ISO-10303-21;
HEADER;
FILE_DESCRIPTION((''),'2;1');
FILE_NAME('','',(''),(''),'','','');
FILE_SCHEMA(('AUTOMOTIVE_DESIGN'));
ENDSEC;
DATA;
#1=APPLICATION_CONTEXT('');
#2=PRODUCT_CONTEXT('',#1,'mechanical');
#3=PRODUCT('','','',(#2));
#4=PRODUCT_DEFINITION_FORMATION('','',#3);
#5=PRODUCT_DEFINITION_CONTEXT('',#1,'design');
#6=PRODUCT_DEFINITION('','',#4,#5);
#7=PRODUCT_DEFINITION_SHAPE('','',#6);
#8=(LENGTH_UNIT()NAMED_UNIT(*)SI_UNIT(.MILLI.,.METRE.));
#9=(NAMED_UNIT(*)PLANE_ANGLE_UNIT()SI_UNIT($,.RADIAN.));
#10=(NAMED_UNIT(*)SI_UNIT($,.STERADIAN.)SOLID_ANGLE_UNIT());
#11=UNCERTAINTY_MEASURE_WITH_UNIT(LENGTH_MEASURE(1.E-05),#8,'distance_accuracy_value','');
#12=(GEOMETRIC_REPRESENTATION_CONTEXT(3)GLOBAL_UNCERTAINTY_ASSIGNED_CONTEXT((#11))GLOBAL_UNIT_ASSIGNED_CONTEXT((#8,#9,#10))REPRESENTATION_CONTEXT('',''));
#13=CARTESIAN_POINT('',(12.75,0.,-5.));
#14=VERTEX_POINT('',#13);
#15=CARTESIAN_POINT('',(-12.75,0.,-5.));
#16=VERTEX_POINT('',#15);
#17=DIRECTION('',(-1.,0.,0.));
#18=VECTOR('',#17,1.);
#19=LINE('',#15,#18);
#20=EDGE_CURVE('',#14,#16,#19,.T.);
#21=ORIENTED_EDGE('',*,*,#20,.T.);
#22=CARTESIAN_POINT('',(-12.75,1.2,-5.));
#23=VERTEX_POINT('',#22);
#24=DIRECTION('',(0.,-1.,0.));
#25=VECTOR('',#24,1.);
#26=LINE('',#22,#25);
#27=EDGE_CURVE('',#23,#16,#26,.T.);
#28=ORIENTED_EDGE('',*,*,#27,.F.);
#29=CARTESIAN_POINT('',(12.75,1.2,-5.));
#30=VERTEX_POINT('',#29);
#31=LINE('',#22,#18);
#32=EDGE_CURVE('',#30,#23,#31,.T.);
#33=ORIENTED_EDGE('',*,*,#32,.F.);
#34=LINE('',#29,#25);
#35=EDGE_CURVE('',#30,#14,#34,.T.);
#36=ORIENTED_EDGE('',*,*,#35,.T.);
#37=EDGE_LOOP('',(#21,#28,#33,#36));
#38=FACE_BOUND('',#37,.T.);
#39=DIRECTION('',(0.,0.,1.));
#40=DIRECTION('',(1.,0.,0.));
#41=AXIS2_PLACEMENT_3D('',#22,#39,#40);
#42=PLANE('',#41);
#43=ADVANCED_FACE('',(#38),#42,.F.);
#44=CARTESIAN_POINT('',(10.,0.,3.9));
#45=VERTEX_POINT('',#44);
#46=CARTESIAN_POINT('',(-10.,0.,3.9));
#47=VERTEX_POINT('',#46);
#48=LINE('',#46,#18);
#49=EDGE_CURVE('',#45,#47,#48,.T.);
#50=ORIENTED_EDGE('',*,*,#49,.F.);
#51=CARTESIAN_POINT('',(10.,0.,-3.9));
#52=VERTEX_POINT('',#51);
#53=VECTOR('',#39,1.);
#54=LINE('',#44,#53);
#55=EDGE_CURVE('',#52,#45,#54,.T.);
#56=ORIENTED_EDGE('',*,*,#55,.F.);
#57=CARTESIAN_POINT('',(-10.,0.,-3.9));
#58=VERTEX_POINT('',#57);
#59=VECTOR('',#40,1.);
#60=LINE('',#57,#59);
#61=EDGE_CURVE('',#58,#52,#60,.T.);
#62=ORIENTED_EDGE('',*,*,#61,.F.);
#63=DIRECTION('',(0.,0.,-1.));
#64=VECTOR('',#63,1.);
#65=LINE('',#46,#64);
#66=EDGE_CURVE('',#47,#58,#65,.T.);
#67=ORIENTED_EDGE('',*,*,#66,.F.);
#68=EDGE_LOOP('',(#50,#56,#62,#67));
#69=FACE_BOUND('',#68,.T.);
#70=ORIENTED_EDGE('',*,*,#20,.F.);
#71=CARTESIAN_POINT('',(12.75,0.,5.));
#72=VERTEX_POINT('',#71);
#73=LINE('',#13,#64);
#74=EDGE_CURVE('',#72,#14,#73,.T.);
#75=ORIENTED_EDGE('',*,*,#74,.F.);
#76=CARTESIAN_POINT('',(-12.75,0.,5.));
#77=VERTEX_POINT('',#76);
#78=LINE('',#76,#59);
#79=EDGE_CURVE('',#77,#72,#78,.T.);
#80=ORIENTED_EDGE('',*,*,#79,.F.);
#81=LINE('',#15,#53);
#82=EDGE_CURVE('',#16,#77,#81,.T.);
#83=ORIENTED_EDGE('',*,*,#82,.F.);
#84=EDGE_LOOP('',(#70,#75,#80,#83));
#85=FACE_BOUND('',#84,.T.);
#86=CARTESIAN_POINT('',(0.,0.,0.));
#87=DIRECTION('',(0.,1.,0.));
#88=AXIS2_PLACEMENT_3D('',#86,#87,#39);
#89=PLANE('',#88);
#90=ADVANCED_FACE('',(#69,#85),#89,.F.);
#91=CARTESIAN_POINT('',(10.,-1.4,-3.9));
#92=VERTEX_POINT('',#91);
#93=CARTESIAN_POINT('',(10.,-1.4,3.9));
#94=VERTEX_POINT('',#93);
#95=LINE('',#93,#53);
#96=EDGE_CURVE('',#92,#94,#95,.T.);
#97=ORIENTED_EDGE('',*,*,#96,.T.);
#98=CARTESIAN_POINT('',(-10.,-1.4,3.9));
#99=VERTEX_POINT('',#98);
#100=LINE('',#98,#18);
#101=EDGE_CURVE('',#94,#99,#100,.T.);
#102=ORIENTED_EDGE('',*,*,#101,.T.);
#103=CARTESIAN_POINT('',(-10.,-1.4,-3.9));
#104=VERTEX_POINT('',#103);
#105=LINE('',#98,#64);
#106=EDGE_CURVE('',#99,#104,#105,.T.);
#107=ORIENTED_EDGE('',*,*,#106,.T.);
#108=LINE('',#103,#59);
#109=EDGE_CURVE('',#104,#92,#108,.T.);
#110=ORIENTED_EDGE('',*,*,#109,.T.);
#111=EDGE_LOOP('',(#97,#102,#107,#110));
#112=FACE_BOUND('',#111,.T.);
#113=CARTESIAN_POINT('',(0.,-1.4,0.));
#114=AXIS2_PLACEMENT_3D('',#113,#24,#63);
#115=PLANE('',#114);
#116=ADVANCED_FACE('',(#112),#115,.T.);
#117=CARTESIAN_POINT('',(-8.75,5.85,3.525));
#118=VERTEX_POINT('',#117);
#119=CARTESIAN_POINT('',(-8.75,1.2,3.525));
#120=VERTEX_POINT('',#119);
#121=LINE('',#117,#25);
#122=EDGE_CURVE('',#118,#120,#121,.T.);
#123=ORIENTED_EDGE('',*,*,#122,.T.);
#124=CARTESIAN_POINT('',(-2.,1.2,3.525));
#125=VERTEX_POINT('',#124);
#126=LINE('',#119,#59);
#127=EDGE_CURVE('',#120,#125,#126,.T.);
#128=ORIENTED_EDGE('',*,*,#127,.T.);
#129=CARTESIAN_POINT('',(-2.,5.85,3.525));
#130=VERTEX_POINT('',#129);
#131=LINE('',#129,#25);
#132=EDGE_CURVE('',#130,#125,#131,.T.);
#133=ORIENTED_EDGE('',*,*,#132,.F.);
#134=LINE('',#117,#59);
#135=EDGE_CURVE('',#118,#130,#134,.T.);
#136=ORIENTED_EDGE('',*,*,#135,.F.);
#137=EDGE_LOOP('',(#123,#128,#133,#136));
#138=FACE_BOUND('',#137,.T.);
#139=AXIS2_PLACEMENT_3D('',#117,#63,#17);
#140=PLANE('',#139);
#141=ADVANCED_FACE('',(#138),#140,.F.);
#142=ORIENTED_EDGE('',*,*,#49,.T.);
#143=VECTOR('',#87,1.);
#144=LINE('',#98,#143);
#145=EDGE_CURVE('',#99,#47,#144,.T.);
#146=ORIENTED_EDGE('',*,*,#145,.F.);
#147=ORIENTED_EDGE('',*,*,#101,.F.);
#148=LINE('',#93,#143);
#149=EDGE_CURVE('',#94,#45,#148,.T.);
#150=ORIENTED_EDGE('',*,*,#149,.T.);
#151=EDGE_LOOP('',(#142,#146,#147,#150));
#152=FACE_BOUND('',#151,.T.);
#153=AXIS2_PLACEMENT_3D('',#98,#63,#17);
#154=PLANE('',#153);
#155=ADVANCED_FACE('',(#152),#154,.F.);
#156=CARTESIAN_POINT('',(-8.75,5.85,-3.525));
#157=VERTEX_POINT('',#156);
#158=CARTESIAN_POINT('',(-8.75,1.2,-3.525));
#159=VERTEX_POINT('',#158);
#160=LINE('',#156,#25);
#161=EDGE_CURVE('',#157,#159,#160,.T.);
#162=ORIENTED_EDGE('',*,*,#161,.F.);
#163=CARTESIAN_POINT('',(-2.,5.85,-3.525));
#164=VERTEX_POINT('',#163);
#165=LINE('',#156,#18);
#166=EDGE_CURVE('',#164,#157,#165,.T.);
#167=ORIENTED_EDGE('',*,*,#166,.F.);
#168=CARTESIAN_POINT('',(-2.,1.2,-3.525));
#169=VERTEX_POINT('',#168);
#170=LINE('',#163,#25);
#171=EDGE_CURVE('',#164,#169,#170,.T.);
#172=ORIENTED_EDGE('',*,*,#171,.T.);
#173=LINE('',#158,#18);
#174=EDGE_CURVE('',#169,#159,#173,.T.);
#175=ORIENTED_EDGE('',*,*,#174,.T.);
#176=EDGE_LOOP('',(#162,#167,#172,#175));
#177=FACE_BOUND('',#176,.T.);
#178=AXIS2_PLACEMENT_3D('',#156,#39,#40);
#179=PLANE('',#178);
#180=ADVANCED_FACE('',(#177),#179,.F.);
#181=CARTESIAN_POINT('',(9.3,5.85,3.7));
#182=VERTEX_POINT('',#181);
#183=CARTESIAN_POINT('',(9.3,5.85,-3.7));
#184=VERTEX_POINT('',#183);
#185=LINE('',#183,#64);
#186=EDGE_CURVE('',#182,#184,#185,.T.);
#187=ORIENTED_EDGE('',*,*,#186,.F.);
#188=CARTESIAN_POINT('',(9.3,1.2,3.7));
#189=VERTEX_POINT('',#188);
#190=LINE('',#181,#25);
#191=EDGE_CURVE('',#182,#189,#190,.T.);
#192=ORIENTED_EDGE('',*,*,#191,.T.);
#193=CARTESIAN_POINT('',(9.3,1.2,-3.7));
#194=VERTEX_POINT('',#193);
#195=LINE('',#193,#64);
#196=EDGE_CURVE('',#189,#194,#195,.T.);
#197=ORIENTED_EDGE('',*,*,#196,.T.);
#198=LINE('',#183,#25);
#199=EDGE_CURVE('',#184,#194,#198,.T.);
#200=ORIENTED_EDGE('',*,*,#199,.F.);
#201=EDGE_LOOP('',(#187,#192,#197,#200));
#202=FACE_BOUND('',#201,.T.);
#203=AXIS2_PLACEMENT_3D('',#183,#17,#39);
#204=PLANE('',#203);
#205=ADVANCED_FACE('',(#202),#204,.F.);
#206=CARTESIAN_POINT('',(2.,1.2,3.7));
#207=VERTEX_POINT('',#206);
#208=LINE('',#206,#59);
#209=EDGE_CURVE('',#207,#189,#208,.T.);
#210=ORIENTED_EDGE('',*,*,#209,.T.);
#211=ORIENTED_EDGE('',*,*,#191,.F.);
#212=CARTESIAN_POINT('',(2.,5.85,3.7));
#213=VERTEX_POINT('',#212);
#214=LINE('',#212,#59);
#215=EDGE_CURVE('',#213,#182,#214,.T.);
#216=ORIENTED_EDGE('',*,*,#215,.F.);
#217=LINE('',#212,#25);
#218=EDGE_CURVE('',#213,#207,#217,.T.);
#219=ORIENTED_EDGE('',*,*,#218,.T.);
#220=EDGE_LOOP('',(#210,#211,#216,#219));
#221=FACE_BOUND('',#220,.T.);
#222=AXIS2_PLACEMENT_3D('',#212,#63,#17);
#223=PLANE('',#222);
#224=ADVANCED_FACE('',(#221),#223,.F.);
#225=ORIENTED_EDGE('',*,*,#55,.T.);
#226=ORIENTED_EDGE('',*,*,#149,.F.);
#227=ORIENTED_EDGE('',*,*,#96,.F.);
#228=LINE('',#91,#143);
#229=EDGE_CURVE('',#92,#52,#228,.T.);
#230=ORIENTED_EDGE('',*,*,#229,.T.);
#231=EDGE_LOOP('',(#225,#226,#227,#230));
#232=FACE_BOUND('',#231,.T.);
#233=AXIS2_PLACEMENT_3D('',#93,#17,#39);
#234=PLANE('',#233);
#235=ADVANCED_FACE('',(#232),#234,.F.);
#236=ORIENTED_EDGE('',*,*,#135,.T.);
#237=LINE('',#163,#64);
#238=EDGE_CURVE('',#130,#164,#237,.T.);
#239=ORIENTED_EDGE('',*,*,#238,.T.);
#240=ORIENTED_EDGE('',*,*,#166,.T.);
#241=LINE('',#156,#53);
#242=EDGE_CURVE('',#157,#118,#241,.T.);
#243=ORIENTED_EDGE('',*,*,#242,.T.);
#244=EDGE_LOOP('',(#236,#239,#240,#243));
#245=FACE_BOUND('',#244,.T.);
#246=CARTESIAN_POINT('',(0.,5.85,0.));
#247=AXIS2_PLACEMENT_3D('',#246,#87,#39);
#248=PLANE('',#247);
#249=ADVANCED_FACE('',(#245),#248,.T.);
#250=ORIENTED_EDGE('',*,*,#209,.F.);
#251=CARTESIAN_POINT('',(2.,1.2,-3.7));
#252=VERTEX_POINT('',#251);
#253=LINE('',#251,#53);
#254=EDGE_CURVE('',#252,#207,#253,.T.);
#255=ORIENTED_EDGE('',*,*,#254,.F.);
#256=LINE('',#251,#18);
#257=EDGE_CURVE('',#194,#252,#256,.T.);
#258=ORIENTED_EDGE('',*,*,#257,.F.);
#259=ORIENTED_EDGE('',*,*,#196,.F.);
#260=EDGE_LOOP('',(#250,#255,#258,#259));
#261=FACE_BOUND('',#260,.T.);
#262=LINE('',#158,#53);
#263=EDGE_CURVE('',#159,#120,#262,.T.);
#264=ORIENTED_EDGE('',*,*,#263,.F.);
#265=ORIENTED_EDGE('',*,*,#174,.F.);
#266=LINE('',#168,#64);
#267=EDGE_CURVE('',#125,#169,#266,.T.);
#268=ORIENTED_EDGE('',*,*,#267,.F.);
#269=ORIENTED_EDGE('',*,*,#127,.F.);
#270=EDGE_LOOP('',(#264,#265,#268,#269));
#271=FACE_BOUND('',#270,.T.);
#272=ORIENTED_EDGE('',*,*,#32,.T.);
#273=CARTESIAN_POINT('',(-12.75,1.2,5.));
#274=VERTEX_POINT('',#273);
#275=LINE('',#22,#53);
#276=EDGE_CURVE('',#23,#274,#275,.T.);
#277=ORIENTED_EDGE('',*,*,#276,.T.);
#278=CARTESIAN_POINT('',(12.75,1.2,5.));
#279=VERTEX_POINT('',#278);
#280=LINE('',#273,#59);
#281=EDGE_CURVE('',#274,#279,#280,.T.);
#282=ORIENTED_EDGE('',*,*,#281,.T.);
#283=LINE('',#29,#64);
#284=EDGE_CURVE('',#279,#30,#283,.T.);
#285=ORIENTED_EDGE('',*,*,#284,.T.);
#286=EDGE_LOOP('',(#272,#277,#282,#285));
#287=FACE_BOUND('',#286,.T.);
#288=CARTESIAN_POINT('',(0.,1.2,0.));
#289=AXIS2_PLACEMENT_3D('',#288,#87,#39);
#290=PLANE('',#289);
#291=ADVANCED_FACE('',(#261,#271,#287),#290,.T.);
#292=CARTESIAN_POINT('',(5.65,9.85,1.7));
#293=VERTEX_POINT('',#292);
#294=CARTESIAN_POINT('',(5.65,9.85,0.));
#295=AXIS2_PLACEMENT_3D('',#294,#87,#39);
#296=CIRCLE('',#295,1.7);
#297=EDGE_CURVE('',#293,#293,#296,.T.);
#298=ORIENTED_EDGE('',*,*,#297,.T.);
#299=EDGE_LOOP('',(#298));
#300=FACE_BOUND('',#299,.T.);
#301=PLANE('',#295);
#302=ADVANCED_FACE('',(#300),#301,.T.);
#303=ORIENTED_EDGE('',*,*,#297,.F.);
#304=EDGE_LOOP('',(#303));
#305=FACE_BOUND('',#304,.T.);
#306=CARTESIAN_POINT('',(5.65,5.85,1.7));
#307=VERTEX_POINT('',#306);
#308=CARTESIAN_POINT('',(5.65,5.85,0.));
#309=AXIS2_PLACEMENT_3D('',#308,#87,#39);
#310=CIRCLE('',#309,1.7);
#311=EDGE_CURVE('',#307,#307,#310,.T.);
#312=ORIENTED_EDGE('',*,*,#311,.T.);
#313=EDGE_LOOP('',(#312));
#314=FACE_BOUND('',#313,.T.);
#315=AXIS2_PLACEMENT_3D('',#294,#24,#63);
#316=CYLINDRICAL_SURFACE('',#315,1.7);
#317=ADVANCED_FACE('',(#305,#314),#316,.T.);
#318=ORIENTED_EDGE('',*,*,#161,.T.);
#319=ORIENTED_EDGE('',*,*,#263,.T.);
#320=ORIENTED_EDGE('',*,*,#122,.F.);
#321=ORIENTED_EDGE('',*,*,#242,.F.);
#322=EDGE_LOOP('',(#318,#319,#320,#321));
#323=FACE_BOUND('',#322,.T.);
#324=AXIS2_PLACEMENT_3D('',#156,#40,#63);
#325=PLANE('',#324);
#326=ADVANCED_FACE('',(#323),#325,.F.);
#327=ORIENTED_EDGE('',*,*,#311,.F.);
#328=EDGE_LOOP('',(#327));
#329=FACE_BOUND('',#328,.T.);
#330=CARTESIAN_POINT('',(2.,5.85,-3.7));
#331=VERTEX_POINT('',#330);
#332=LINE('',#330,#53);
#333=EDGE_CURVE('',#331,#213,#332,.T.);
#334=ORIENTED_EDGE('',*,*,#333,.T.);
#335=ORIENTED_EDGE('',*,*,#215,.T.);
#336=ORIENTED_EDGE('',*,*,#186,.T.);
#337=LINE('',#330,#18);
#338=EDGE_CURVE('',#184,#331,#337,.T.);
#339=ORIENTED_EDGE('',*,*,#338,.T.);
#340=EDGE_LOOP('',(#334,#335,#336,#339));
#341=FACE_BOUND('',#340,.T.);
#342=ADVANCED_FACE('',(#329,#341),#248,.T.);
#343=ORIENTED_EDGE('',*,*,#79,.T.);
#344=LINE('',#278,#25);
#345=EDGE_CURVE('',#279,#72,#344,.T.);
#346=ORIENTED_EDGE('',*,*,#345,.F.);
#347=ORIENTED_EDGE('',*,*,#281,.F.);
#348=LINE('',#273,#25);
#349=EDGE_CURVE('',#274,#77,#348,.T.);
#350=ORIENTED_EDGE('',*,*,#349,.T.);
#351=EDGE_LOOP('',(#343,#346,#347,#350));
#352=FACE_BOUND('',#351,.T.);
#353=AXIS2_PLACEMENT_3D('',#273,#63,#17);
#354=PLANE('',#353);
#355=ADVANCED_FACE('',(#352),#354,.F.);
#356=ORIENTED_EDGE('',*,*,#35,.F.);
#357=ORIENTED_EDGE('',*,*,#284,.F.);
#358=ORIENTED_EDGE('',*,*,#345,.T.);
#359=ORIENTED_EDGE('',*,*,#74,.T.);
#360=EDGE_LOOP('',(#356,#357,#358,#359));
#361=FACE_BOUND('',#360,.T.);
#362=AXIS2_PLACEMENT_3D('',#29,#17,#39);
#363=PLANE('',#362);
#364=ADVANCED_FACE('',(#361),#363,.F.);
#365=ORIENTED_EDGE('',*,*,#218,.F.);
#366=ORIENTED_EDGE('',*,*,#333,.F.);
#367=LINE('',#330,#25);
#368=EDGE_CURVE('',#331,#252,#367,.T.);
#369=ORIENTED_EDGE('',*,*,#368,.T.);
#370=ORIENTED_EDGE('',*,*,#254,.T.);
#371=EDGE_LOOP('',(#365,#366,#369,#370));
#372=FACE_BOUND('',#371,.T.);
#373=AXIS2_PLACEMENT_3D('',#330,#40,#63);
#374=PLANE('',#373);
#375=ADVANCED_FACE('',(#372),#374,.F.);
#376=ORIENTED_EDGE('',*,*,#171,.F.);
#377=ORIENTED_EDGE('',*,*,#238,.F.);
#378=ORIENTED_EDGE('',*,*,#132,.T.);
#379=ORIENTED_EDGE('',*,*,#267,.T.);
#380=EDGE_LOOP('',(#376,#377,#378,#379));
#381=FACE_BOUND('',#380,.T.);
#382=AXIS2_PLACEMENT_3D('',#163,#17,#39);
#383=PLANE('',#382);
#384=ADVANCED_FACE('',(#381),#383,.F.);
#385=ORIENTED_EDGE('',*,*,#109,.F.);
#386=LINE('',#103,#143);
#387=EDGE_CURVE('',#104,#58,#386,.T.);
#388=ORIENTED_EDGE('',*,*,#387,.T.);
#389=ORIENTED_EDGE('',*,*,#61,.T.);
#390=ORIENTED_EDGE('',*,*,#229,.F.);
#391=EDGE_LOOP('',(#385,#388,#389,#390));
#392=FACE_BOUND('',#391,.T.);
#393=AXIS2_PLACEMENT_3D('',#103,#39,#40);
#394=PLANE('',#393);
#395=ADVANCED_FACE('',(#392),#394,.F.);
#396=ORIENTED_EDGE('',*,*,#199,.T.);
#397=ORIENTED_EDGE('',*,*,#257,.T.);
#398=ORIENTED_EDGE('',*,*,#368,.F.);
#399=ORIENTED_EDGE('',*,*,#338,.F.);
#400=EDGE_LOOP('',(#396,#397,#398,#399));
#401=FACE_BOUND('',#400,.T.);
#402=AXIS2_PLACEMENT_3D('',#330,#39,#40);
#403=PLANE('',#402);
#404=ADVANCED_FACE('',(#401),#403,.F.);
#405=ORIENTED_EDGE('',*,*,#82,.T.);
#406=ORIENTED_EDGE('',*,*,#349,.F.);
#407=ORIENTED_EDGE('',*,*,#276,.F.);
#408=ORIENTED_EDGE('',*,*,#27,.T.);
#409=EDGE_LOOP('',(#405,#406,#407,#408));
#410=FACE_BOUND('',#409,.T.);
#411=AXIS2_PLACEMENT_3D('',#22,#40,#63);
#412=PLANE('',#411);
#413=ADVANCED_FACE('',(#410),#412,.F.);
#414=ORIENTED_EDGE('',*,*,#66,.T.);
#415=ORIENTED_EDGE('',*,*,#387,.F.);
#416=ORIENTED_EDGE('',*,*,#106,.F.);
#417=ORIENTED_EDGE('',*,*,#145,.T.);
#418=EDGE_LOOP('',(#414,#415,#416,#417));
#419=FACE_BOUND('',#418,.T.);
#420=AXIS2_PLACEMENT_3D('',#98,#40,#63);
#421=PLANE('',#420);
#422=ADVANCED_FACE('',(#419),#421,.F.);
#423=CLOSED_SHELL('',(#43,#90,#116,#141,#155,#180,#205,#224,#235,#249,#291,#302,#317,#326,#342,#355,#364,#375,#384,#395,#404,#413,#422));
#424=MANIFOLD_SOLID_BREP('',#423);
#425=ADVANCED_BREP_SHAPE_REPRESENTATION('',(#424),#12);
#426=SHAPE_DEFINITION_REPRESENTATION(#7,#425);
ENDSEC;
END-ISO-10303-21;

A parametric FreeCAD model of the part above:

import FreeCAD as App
import Part
import Sketcher

V = App.Vector
Q = App.Units.Quantity


def add_polygon(sketch, points):
    """Adds a closed chain of lines whose ends are joined by coincident constraints."""
    first, n = sketch.GeometryCount, len(points)
    for a, b in zip(points, points[1:] + points[:1]):
        sketch.addGeometry(Part.LineSegment(App.Vector(*a, 0), App.Vector(*b, 0)), False)
    for i in range(n):
        sketch.addConstraint(Sketcher.Constraint("Coincident", first + i, 2, first + (i + 1) % n, 1))

doc = App.newDocument("Part")
body = doc.addObject("PartDesign::Body", "Body")

sketch1 = body.newObject("Sketcher::SketchObject", "Sketch")
sketch1.AttachmentSupport = (doc.getObject("XZ_Plane"), [""])
sketch1.MapMode = "FlatFace"
add_polygon(sketch1, [(-13, -5), (-13, 5), (13, 5), (13, -5)])
sketch1.addConstraint(Sketcher.Constraint("Vertical", 0))
sketch1.addConstraint(Sketcher.Constraint("Horizontal", 1))
sketch1.addConstraint(Sketcher.Constraint("Vertical", 2))
sketch1.addConstraint(Sketcher.Constraint("Horizontal", 3))
sketch1.addConstraint(Sketcher.Constraint("Symmetric", 0, 2, 2, 2, -1, 1))
sketch1.addConstraint(Sketcher.Constraint("DistanceY", 0, 1, 0, 2, Q("10 mm")))
sketch1.addConstraint(Sketcher.Constraint("DistanceX", 1, 1, 1, 2, Q("25.5 mm")))
pad1 = body.newObject("PartDesign::Pad", "Pad")
pad1.Profile = sketch1
pad1.Length = 1.2
pad1.Reversed = True

sketch2 = body.newObject("Sketcher::SketchObject", "Sketch001")
sketch2.AttachmentSupport = (doc.getObject("XZ_Plane"), [""])
sketch2.MapMode = "FlatFace"
sketch2.AttachmentOffset = App.Placement(V(0, 0, -1.2), App.Rotation())
add_polygon(sketch2, [(-9, -4), (-9, 4), (-2, 4), (-2, -4)])
add_polygon(sketch2, [(2, -4), (2, 4), (9, 4), (9, -4)])
sketch2.addConstraint(Sketcher.Constraint("Vertical", 0))
sketch2.addConstraint(Sketcher.Constraint("Horizontal", 1))
sketch2.addConstraint(Sketcher.Constraint("Vertical", 2))
sketch2.addConstraint(Sketcher.Constraint("Horizontal", 3))
sketch2.addConstraint(Sketcher.Constraint("Vertical", 4))
sketch2.addConstraint(Sketcher.Constraint("Horizontal", 5))
sketch2.addConstraint(Sketcher.Constraint("Vertical", 6))
sketch2.addConstraint(Sketcher.Constraint("Horizontal", 7))
sketch2.addConstraint(Sketcher.Constraint("DistanceX", 5, 1, 5, 2, Q("7.3 mm")))
sketch2.addConstraint(Sketcher.Constraint("DistanceY", 4, 1, 4, 2, Q("7.4 mm")))
sketch2.addConstraint(Sketcher.Constraint("DistanceX", 1, 2, -1, 1, Q("2 mm")))
sketch2.addConstraint(Sketcher.Constraint("DistanceX", -1, 1, 4, 2, Q("2 mm")))
sketch2.addConstraint(Sketcher.Constraint("DistanceX", 1, 1, 1, 2, Q("6.75 mm")))
sketch2.addConstraint(Sketcher.Constraint("DistanceY", 0, 1, 0, 2, Q("7.05 mm")))
sketch2.addConstraint(Sketcher.Constraint("DistanceY", -1, 1, 4, 2, Q("3.7 mm")))
sketch2.addConstraint(Sketcher.Constraint("DistanceY", -1, 1, 0, 2, Q("3.525 mm")))
pad2 = body.newObject("PartDesign::Pad", "Pad001")
pad2.Profile = sketch2
pad2.Length = 4.65
pad2.Reversed = True

sketch3 = body.newObject("Sketcher::SketchObject", "Sketch002")
sketch3.AttachmentSupport = (doc.getObject("XZ_Plane"), [""])
sketch3.MapMode = "FlatFace"
sketch3.AttachmentOffset = App.Placement(V(0, 0, -5.85), App.Rotation())
sketch3.addGeometry(Part.Circle(V(5.7, 0, 0), V(0, 0, 1), 1.7), False)
sketch3.addConstraint(Sketcher.Constraint("PointOnObject", 0, 3, -1))
sketch3.addConstraint(Sketcher.Constraint("Diameter", 0, Q("3.4 mm")))
sketch3.addConstraint(Sketcher.Constraint("DistanceX", -1, 1, 0, 3, Q("5.65 mm")))
pad3 = body.newObject("PartDesign::Pad", "Pad002")
pad3.Profile = sketch3
pad3.Length = 4
pad3.Reversed = True

sketch4 = body.newObject("Sketcher::SketchObject", "Sketch003")
sketch4.AttachmentSupport = (doc.getObject("XZ_Plane"), [""])
sketch4.MapMode = "FlatFace"
add_polygon(sketch4, [(-10, 4), (-10, -4), (10, -4), (10, 4)])
sketch4.addConstraint(Sketcher.Constraint("Vertical", 0))
sketch4.addConstraint(Sketcher.Constraint("Horizontal", 1))
sketch4.addConstraint(Sketcher.Constraint("Vertical", 2))
sketch4.addConstraint(Sketcher.Constraint("Horizontal", 3))
sketch4.addConstraint(Sketcher.Constraint("Symmetric", 0, 2, 2, 2, -1, 1))
sketch4.addConstraint(Sketcher.Constraint("DistanceX", 1, 1, 1, 2, Q("20 mm")))
sketch4.addConstraint(Sketcher.Constraint("DistanceY", 0, 2, 0, 1, Q("7.8 mm")))
pad4 = body.newObject("PartDesign::Pad", "Pad003")
pad4.Profile = sketch4
pad4.Length = 1.4

doc.recompute()
